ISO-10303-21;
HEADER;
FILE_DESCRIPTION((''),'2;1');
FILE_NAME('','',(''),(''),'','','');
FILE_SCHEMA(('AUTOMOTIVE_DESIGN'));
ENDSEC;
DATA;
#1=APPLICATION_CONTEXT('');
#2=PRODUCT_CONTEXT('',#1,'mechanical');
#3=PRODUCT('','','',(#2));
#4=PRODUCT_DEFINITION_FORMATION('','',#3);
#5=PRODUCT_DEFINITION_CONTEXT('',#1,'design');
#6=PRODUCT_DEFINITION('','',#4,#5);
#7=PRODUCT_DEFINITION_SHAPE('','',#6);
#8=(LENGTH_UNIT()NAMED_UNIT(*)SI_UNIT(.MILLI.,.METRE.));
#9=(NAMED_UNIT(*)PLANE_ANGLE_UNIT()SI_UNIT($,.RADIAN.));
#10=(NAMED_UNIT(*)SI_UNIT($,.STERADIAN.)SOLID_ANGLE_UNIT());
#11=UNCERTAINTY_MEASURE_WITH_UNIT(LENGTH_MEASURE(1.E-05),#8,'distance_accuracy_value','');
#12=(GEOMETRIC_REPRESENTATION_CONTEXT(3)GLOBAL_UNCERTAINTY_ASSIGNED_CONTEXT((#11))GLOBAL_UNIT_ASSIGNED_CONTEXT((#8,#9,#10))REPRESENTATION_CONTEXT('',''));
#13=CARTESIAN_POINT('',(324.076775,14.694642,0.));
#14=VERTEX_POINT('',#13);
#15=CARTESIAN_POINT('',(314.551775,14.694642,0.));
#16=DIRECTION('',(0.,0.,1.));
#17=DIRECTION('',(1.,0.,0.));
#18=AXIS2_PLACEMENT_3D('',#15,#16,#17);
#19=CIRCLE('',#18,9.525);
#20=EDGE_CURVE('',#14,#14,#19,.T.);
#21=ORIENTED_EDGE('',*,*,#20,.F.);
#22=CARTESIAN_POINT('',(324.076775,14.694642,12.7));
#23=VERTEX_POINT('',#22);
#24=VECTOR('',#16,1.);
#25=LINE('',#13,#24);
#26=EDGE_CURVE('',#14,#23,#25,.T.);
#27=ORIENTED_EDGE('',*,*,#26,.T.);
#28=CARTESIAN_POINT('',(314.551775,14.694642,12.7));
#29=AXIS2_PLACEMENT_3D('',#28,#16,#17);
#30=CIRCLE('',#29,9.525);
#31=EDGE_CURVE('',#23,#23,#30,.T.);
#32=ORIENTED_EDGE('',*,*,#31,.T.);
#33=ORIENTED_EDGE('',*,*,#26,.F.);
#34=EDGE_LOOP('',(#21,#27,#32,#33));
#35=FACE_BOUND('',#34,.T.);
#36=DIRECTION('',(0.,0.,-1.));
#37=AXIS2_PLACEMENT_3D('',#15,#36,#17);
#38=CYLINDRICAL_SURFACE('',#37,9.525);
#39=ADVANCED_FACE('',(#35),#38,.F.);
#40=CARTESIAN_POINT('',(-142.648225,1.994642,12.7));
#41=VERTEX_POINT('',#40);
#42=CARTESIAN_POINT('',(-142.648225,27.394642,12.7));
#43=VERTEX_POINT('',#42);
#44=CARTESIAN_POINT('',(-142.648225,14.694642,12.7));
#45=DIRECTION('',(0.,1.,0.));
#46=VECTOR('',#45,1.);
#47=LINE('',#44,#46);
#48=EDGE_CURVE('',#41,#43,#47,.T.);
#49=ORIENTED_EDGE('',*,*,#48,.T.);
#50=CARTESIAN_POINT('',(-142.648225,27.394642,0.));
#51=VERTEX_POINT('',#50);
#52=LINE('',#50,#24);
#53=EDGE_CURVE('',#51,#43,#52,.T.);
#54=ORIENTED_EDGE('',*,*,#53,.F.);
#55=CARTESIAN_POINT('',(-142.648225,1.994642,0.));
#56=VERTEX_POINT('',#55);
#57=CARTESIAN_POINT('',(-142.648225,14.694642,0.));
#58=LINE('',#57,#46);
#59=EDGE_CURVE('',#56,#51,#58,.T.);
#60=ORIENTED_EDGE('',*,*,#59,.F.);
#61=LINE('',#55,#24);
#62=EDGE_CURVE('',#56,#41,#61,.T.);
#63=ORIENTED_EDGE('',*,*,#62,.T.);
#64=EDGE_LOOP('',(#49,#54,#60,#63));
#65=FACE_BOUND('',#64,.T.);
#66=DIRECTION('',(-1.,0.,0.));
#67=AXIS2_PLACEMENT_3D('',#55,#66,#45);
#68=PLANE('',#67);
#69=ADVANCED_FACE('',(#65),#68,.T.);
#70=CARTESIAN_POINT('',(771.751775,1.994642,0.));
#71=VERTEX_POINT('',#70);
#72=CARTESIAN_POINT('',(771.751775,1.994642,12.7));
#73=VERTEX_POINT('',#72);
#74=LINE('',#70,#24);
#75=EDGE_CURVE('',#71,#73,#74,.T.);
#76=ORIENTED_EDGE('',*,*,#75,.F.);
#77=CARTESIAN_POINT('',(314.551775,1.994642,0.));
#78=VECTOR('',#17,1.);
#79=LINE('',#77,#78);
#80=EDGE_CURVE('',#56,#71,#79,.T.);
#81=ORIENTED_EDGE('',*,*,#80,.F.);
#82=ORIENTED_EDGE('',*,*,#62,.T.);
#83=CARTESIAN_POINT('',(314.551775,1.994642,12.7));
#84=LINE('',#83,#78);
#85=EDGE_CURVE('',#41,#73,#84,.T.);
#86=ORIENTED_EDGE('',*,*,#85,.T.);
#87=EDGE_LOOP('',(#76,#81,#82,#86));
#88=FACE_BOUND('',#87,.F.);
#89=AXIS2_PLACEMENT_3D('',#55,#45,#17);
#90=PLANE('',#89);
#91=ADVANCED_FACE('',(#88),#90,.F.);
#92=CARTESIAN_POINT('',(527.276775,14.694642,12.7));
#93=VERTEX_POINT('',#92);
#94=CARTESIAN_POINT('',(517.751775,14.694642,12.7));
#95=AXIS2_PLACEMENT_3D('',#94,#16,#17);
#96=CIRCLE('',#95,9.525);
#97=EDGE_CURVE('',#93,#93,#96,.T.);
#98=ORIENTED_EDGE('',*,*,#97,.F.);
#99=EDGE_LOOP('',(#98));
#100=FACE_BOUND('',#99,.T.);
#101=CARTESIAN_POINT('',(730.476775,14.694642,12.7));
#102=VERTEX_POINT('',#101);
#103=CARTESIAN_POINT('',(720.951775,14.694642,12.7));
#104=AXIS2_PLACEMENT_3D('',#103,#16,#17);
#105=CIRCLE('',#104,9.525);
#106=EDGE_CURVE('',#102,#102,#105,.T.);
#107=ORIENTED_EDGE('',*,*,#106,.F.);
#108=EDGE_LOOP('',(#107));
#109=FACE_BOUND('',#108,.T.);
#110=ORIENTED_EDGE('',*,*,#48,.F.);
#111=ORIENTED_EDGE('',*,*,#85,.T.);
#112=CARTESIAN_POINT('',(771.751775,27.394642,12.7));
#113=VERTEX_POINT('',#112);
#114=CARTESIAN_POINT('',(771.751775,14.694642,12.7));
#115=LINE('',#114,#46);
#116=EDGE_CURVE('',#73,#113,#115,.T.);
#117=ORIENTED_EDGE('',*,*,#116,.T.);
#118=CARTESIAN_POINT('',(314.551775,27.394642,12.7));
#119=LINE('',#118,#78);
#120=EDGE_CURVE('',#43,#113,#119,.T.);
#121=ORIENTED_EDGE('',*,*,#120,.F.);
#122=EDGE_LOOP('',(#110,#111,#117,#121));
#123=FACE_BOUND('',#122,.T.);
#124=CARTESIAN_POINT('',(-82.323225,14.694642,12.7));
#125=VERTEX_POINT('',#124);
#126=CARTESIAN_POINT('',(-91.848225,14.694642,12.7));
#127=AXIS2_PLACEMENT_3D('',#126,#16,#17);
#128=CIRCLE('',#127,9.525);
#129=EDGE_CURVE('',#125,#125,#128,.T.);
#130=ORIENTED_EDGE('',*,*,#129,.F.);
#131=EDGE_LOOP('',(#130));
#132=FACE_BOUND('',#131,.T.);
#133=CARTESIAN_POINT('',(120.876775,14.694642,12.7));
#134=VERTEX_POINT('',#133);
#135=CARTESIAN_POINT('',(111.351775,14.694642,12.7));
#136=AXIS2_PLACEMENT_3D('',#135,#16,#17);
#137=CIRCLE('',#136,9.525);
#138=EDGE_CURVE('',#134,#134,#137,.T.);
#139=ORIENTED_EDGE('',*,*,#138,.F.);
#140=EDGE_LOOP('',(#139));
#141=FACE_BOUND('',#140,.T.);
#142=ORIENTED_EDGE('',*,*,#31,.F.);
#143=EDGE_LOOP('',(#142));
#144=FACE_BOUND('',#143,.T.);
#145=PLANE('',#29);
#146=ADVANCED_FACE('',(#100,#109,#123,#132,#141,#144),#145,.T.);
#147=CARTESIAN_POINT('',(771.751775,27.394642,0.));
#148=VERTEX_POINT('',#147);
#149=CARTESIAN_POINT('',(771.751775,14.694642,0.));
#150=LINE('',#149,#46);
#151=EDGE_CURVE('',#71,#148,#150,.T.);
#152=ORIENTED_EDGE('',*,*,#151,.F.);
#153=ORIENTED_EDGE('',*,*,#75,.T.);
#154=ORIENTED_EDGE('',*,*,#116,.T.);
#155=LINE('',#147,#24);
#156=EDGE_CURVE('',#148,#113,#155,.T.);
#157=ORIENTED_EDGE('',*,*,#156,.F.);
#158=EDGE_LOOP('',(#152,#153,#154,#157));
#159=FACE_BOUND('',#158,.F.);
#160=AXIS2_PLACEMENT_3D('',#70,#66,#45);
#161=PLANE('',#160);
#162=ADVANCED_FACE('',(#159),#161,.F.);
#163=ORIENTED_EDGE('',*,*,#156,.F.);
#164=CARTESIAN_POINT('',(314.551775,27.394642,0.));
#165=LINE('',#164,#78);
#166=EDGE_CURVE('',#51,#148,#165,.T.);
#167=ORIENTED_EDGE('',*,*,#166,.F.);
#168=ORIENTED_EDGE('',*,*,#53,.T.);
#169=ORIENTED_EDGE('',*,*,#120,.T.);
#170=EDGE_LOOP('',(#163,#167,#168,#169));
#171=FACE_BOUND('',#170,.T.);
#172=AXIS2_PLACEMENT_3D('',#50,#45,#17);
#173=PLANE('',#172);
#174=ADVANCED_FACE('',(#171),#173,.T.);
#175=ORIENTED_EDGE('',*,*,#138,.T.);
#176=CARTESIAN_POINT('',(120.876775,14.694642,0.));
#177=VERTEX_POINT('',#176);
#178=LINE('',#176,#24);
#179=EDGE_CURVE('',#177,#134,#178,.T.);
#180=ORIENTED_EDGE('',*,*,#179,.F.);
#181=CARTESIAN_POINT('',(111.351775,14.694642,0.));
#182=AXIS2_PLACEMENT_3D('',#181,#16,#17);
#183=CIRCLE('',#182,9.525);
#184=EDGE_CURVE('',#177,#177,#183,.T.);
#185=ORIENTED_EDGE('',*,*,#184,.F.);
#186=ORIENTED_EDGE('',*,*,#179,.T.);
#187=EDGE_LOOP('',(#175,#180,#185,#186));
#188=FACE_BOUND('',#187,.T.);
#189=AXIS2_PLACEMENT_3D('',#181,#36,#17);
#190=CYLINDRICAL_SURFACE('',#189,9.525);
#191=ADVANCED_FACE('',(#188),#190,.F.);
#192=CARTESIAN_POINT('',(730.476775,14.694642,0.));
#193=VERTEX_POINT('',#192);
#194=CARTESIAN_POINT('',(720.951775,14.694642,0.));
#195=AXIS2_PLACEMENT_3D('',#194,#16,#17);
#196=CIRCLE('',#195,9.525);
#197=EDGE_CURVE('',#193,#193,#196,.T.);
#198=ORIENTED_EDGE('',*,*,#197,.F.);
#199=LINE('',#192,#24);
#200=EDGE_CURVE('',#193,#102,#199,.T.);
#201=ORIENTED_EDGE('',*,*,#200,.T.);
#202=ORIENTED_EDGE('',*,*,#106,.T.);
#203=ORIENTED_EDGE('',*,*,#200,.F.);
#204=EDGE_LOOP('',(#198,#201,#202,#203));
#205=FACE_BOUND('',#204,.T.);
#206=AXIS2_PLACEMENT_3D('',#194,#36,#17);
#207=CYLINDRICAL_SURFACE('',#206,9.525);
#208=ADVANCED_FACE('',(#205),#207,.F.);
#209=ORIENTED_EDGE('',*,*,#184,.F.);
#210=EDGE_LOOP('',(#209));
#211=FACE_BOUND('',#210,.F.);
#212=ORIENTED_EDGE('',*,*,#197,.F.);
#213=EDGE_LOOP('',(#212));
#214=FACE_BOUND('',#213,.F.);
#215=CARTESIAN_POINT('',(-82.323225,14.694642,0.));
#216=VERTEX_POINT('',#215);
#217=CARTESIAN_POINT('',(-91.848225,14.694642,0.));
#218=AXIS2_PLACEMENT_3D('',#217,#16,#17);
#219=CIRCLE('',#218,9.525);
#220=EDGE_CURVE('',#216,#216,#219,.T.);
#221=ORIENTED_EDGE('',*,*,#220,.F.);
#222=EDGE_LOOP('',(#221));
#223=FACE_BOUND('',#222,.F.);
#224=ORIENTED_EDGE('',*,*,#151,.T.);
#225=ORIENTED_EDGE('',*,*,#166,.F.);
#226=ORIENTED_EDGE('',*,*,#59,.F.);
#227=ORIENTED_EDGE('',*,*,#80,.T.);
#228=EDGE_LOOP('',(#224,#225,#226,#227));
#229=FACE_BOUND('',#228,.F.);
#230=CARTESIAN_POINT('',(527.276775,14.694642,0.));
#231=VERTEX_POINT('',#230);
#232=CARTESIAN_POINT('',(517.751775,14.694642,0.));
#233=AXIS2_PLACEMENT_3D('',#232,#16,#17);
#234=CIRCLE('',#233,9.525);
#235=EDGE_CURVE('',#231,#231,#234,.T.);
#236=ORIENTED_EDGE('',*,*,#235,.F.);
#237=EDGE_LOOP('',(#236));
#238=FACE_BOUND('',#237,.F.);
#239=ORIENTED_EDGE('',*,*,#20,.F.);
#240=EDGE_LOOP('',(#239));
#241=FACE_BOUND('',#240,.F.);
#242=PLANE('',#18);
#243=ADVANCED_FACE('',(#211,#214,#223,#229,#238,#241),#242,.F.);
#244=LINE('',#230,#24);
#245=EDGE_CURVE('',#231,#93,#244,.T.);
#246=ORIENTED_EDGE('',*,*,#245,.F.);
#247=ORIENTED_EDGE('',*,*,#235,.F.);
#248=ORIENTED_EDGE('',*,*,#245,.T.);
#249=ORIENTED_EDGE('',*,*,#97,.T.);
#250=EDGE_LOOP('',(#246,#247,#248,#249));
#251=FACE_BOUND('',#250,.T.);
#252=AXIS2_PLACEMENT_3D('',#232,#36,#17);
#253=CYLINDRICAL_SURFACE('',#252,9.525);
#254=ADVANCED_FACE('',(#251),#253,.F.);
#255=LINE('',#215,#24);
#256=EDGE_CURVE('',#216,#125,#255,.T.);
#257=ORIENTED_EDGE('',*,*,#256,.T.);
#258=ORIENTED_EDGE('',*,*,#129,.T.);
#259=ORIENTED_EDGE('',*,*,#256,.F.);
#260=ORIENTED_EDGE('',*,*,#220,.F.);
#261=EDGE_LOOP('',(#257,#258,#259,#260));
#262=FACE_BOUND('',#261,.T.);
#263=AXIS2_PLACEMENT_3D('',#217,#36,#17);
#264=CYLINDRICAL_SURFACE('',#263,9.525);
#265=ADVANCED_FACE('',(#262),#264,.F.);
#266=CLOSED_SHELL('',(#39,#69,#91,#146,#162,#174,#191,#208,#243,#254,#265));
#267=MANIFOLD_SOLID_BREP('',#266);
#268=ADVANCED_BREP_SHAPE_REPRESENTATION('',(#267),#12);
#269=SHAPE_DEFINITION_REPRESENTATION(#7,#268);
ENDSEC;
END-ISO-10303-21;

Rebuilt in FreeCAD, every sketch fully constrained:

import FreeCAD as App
import Part
import Sketcher

V = App.Vector
Q = App.Units.Quantity


def add_polygon(sketch, points):
    """Adds a closed chain of lines whose ends are joined by coincident constraints."""
    first, n = sketch.GeometryCount, len(points)
    for a, b in zip(points, points[1:] + points[:1]):
        sketch.addGeometry(Part.LineSegment(App.Vector(*a, 0), App.Vector(*b, 0)), False)
    for i in range(n):
        sketch.addConstraint(Sketcher.Constraint("Coincident", first + i, 2, first + (i + 1) % n, 1))

doc = App.newDocument("Part")
body = doc.addObject("PartDesign::Body", "Body")

sketch1 = body.newObject("Sketcher::SketchObject", "Sketch")
sketch1.AttachmentSupport = (doc.getObject("XY_Plane"), [""])
sketch1.MapMode = "FlatFace"
add_polygon(sketch1, [(-143, 27), (-143, 2), (772, 2), (772, 27)])
sketch1.addGeometry(Part.Circle(V(-92, 15, 0), V(0, 0, 1), 10), False)
sketch1.addGeometry(Part.Circle(V(111, 15, 0), V(0, 0, 1), 10), False)
sketch1.addGeometry(Part.Circle(V(315, 15, 0), V(0, 0, 1), 10), False)
sketch1.addGeometry(Part.Circle(V(518, 15, 0), V(0, 0, 1), 10), False)
sketch1.addGeometry(Part.Circle(V(721, 15, 0), V(0, 0, 1), 10), False)
sketch1.addConstraint([
    Sketcher.Constraint("Vertical", 0),
    Sketcher.Constraint("Horizontal", 1),
    Sketcher.Constraint("Vertical", 2),
    Sketcher.Constraint("Horizontal", 3),
    Sketcher.Constraint("Equal", 4, 5),
    Sketcher.Constraint("Equal", 5, 6),
    Sketcher.Constraint("Equal", 6, 7),
    Sketcher.Constraint("Equal", 7, 8),
    Sketcher.Constraint("Horizontal", 4, 3, 5, 3),
    Sketcher.Constraint("Horizontal", 5, 3, 6, 3),
    Sketcher.Constraint("Horizontal", 6, 3, 7, 3),
    Sketcher.Constraint("Horizontal", 7, 3, 8, 3),
    Sketcher.Constraint("Diameter", 4, Q("0.75 in")),
    Sketcher.Constraint("DistanceX", 1, 1, 1, 2, Q("36 in")),
    Sketcher.Constraint("DistanceY", 0, 2, 0, 1, Q("1 in")),
    Sketcher.Constraint("DistanceX", 4, 3, 5, 3, Q("8 in")),
    Sketcher.Constraint("DistanceX", 5, 3, 6, 3, Q("8 in")),
    Sketcher.Constraint("DistanceX", 6, 3, 7, 3, Q("8 in")),
    Sketcher.Constraint("DistanceX", 7, 3, 8, 3, Q("8 in")),
    Sketcher.Constraint("DistanceX", 0, 2, 4, 3, Q("2 in")),
    Sketcher.Constraint("DistanceY", 0, 2, 4, 3, Q("0.5 in")),
    Sketcher.Constraint("DistanceX", 4, 3, -1, 1, Q("91.848225 mm")),
    Sketcher.Constraint("DistanceY", -1, 1, 4, 3, Q("14.694642 mm")),
])
pad1 = body.newObject("PartDesign::Pad", "Pad")
pad1.Profile = sketch1
pad1.Length = Q("0.5 in")

doc.recompute()
